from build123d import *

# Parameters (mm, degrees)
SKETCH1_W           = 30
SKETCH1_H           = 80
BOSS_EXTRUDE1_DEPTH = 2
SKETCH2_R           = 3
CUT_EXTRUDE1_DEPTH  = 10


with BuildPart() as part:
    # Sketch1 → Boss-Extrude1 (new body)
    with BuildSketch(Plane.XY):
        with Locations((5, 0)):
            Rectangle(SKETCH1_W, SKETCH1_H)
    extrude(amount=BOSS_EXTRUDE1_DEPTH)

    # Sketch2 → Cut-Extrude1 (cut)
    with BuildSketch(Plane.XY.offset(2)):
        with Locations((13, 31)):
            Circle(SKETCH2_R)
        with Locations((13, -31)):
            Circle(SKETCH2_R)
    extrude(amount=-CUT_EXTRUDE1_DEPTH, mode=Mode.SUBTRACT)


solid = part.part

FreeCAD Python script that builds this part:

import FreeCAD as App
import Part
import Sketcher

V = App.Vector
Q = App.Units.Quantity

doc = App.newDocument("Part")
body = doc.addObject("PartDesign::Body", "Body")

# Sketch on XY plane
sketch1 = doc.addObject("Sketcher::SketchObject", "Sketch")
body.addObject(sketch1)
sketch1.AttachmentSupport = (doc.XY_Plane, [""])
sketch1.MapMode = "FlatFace"
sketch1.addGeometry(Part.LineSegment(V(-10, 40, 0), V(-10, -40, 0)), False)
sketch1.addGeometry(Part.LineSegment(V(-10, -40, 0), V(20, -40, 0)), False)
sketch1.addGeometry(Part.LineSegment(V(20, -40, 0), V(20, 40, 0)), False)
sketch1.addGeometry(Part.LineSegment(V(20, 40, 0), V(-10, 40, 0)), False)
sketch1.addConstraint(Sketcher.Constraint("Coincident", 0, 2, 1, 1))
sketch1.addConstraint(Sketcher.Constraint("Coincident", 1, 2, 2, 1))
sketch1.addConstraint(Sketcher.Constraint("Coincident", 2, 2, 3, 1))
sketch1.addConstraint(Sketcher.Constraint("Coincident", 3, 2, 0, 1))
sketch1.addConstraint(Sketcher.Constraint("Vertical", 0))
sketch1.addConstraint(Sketcher.Constraint("Horizontal", 1))
sketch1.addConstraint(Sketcher.Constraint("Vertical", 2))
sketch1.addConstraint(Sketcher.Constraint("Horizontal", 3))
sketch1.addConstraint(Sketcher.Constraint("DistanceX", 1, 1, 1, 2, Q("30 mm")))
sketch1.addConstraint(Sketcher.Constraint("DistanceY", 0, 2, 0, 1, Q("80 mm")))
sketch1.addConstraint(Sketcher.Constraint("DistanceX", 0, 2, -1, 1, Q("10 mm")))
sketch1.addConstraint(Sketcher.Constraint("DistanceY", 0, 2, -1, 1, Q("40 mm")))
pad1 = doc.addObject("PartDesign::Pad", "Pad")
body.addObject(pad1)
pad1.Profile = sketch1
pad1.Length = 2

# Sketch on XY plane
sketch2 = doc.addObject("Sketcher::SketchObject", "Sketch001")
body.addObject(sketch2)
sketch2.AttachmentSupport = (doc.XY_Plane, [""])
sketch2.MapMode = "FlatFace"
sketch2.AttachmentOffset = App.Placement(V(0, 0, 2), App.Rotation())
sketch2.addGeometry(Part.Circle(V(13, 31, 0), V(0, 0, 1), 3), False)
sketch2.addGeometry(Part.Circle(V(13, -31, 0), V(0, 0, 1), 3), False)
sketch2.addConstraint(Sketcher.Constraint("Equal", 0, 1))
sketch2.addConstraint(Sketcher.Constraint("Symmetric", 0, 3, 1, 3, -1))
sketch2.addConstraint(Sketcher.Constraint("Diameter", 0, Q("6 mm")))
sketch2.addConstraint(Sketcher.Constraint("DistanceX", -1, 1, 0, 3, Q("13 mm")))
sketch2.addConstraint(Sketcher.Constraint("DistanceY", -1, 1, 0, 3, Q("31 mm")))
pocket1 = doc.addObject("PartDesign::Pocket", "Pocket")
body.addObject(pocket1)
pocket1.Profile = sketch2
pocket1.Length = 10

doc.recompute()
